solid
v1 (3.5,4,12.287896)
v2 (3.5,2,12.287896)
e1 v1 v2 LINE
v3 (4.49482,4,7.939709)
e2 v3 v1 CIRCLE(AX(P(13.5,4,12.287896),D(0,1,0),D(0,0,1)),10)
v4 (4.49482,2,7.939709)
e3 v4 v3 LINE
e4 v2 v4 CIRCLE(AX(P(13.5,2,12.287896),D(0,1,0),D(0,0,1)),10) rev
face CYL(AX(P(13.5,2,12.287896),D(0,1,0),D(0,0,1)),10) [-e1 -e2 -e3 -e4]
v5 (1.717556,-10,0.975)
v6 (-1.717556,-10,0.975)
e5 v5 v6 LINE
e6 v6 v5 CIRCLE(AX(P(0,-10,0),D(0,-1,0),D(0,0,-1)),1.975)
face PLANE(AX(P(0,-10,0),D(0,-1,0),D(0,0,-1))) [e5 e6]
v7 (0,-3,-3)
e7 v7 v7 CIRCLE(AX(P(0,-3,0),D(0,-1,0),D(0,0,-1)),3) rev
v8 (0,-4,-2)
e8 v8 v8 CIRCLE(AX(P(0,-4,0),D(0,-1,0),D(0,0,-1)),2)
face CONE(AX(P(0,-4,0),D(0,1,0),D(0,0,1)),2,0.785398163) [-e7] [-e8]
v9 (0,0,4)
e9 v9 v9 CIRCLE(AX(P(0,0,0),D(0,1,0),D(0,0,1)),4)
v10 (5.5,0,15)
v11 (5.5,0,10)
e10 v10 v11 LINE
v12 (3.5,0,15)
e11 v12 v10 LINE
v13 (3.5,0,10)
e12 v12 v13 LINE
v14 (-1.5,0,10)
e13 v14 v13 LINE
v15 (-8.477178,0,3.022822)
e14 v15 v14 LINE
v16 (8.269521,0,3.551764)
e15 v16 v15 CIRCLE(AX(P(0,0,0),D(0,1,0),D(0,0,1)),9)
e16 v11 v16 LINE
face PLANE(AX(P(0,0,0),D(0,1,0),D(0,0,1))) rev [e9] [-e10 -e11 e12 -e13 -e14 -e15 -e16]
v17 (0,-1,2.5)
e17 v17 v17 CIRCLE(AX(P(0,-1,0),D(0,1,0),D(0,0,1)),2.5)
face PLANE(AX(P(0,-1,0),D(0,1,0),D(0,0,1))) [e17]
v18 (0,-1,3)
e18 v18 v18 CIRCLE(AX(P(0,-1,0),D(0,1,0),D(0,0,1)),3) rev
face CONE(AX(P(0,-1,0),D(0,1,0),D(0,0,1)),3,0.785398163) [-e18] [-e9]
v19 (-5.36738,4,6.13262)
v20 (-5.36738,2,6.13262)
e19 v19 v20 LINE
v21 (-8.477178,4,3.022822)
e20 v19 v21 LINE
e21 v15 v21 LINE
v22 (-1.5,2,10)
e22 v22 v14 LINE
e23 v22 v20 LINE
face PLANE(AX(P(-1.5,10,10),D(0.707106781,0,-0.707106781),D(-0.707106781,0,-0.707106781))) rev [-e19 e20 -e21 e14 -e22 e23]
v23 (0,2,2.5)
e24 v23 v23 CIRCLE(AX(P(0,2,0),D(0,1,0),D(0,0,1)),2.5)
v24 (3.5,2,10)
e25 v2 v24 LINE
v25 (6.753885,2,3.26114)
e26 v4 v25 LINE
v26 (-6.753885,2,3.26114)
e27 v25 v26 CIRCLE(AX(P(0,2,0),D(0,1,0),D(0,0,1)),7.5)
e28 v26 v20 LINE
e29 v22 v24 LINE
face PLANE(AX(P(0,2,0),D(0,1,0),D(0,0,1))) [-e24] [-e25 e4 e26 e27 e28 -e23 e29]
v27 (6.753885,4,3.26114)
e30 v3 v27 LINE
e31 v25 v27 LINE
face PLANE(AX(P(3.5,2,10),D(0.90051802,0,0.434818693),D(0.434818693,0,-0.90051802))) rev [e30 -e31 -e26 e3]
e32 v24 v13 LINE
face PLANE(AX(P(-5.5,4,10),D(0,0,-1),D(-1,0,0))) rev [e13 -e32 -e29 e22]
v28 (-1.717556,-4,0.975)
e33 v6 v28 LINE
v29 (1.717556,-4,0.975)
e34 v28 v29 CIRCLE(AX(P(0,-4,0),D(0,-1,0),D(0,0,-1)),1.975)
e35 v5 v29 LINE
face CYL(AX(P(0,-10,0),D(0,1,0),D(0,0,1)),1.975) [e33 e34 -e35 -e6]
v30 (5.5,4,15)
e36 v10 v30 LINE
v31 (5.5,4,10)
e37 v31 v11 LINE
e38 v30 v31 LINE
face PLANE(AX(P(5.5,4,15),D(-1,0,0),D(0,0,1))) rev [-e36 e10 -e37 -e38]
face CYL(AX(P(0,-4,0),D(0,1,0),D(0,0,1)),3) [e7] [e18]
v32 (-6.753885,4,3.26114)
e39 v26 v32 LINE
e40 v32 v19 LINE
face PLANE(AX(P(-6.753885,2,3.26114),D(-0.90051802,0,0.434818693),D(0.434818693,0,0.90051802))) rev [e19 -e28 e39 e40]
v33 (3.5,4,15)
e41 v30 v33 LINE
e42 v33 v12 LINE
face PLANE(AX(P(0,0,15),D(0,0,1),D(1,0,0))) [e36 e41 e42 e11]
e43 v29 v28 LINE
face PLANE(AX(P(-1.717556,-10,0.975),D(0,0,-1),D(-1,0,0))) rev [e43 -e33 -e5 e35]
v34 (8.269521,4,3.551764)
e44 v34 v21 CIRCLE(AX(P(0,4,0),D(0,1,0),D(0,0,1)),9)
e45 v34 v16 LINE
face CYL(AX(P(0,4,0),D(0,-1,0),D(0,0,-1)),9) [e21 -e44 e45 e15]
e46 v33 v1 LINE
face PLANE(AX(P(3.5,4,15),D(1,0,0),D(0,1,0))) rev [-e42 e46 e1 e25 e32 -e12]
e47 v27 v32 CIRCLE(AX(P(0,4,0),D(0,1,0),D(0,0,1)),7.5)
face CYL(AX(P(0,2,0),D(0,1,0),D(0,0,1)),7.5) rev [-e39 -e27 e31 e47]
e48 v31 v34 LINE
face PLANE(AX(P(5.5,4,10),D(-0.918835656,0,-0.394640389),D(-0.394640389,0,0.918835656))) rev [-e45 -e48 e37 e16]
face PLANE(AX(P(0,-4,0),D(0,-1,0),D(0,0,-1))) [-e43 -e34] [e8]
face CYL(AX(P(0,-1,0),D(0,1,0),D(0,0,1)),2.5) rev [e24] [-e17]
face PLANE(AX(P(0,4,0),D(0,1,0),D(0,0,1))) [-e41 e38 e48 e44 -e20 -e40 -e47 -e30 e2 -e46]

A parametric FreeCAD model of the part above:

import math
import FreeCAD as App
import Part
import Sketcher
Q = App.Units.Quantity


def edges_at(feature, points):
    """Names of the edges that pass closest to the given points."""
    edges = feature.Shape.Edges
    near = lambda p: min(range(len(edges)), key=lambda i: edges[i].distToShape(Part.Vertex(*p))[0])
    return sorted({f"Edge{near(p) + 1}" for p in points})

doc = App.newDocument("Part")
body = doc.addObject("PartDesign::Body", "Body")

# Sketch on XZ plane
sketch1 = doc.addObject("Sketcher::SketchObject", "Sketch")
body.addObject(sketch1)
sketch1.AttachmentSupport = (doc.XZ_Plane, [""])
sketch1.MapMode = "FlatFace"
sketch1.addGeometry(Part.LineSegment(App.Vector(-8, 4, 0), App.Vector(-6, 10, 0)), False)
sketch1.addGeometry(Part.LineSegment(App.Vector(-6, 10, 0), App.Vector(6, 10, 0)), False)
sketch1.addGeometry(Part.LineSegment(App.Vector(6, 10, 0), App.Vector(8, 4, 0)), False)
sketch1.addGeometry(Part.ArcOfCircle(Part.Circle(App.Vector(0, 0, 0), App.Vector(0, 0, 1), 9), math.radians(157), math.radians(383)), False)
sketch1.addConstraint(Sketcher.Constraint("Coincident", 0, 2, 1, 1))
sketch1.addConstraint(Sketcher.Constraint("Coincident", 1, 2, 2, 1))
sketch1.addConstraint(Sketcher.Constraint("Tangent", 2, 2, 3, 2))
sketch1.addConstraint(Sketcher.Constraint("Tangent", 3, 1, 0, 1))
sketch1.addConstraint(Sketcher.Constraint("Horizontal", 1))
sketch1.addConstraint(Sketcher.Constraint("Coincident", 3, 3, -1, 1))
sketch1.addConstraint(Sketcher.Constraint("Horizontal", 2, 2, 3, 1))
sketch1.addConstraint(Sketcher.Constraint("Radius", 3, Q("9 mm")))
sketch1.addConstraint(Sketcher.Constraint("DistanceX", 1, 1, 1, 2, Q("11 mm")))
sketch1.addConstraint(Sketcher.Constraint("DistanceY", -1, 1, 0, 2, Q("10 mm")))
pad1 = doc.addObject("PartDesign::Pad", "Pad")
body.addObject(pad1)
pad1.Profile = sketch1
pad1.Length = 4
pad1.Reversed = True

# Sketch on XZ plane
sketch2 = doc.addObject("Sketcher::SketchObject", "Sketch001")
body.addObject(sketch2)
sketch2.AttachmentSupport = (doc.XZ_Plane, [""])
sketch2.MapMode = "FlatFace"
sketch2.AttachmentOffset = App.Placement(App.Vector(0, 0, -4), App.Rotation())
sketch2.addGeometry(Part.LineSegment(App.Vector(-7, 3, 0), App.Vector(-4, 10, 0)), False)
sketch2.addGeometry(Part.LineSegment(App.Vector(-4, 10, 0), App.Vector(4, 10, 0)), False)
sketch2.addGeometry(Part.LineSegment(App.Vector(4, 10, 0), App.Vector(7, 3, 0)), False)
sketch2.addGeometry(Part.ArcOfCircle(Part.Circle(App.Vector(0, 0, 0), App.Vector(0, 0, 1), 8), math.radians(154), math.radians(386)), False)
sketch2.addConstraint(Sketcher.Constraint("Coincident", 0, 2, 1, 1))
sketch2.addConstraint(Sketcher.Constraint("Coincident", 1, 2, 2, 1))
sketch2.addConstraint(Sketcher.Constraint("Tangent", 2, 2, 3, 2))
sketch2.addConstraint(Sketcher.Constraint("Tangent", 3, 1, 0, 1))
sketch2.addConstraint(Sketcher.Constraint("Horizontal", 1))
sketch2.addConstraint(Sketcher.Constraint("Coincident", 3, 3, -1, 1))
sketch2.addConstraint(Sketcher.Constraint("Horizontal", 2, 2, 3, 1))
sketch2.addConstraint(Sketcher.Constraint("Radius", 3, Q("7.5 mm")))
sketch2.addConstraint(Sketcher.Constraint("DistanceX", 1, 1, 1, 2, Q("7 mm")))
sketch2.addConstraint(Sketcher.Constraint("DistanceY", -1, 1, 0, 2, Q("10 mm")))
pocket1 = doc.addObject("PartDesign::Pocket", "Pocket")
body.addObject(pocket1)
pocket1.Profile = sketch2
pocket1.Length = 2
pocket1.Reversed = True

# Sketch on XZ plane
sketch3 = doc.addObject("Sketcher::SketchObject", "Sketch002")
body.addObject(sketch3)
sketch3.AttachmentSupport = (doc.XZ_Plane, [""])
sketch3.MapMode = "FlatFace"
sketch3.addGeometry(Part.LineSegment(App.Vector(1.7, 1, 0), App.Vector(-1.7, 1, 0)), False)
sketch3.addGeometry(Part.ArcOfCircle(Part.Circle(App.Vector(0, 0, 0), App.Vector(0, 0, 1), 2), math.radians(150), math.radians(390)), False)
sketch3.addConstraint(Sketcher.Constraint("Coincident", 0, 1, 1, 2))
sketch3.addConstraint(Sketcher.Constraint("Coincident", 1, 1, 0, 2))
sketch3.addConstraint(Sketcher.Constraint("Horizontal", 0))
sketch3.addConstraint(Sketcher.Constraint("Coincident", 1, 3, -1, 1))
sketch3.addConstraint(Sketcher.Constraint("Radius", 1, Q("1.975 mm")))
sketch3.addConstraint(Sketcher.Constraint("DistanceY", -1, 1, 0, 1, Q("0.975 mm")))
pad2 = doc.addObject("PartDesign::Pad", "Pad001")
body.addObject(pad2)
pad2.Profile = sketch3
pad2.Length = 10

# Sketch on XZ plane
sketch4 = doc.addObject("Sketcher::SketchObject", "Sketch003")
body.addObject(sketch4)
sketch4.AttachmentSupport = (doc.XZ_Plane, [""])
sketch4.MapMode = "FlatFace"
sketch4.addGeometry(Part.Circle(App.Vector(0, 0, 0), App.Vector(0, 0, 1), 3), False)
sketch4.addConstraint(Sketcher.Constraint("Coincident", 0, 3, -1, 1))
sketch4.addConstraint(Sketcher.Constraint("Diameter", 0, Q("6 mm")))
pad3 = doc.addObject("PartDesign::Pad", "Pad002")
body.addObject(pad3)
pad3.Profile = sketch4
pad3.Length = 4

# Sketch on XZ plane
sketch5 = doc.addObject("Sketcher::SketchObject", "Sketch004")
body.addObject(sketch5)
sketch5.AttachmentSupport = (doc.XZ_Plane, [""])
sketch5.MapMode = "FlatFace"
sketch5.AttachmentOffset = App.Placement(App.Vector(0, 0, -2), App.Rotation())
sketch5.addGeometry(Part.Circle(App.Vector(0, 0, 0), App.Vector(0, 0, 1), 2.5), False)
sketch5.addConstraint(Sketcher.Constraint("Coincident", 0, 3, -1, 1))
sketch5.addConstraint(Sketcher.Constraint("Diameter", 0, Q("5 mm")))
pocket2 = doc.addObject("PartDesign::Pocket", "Pocket001")
body.addObject(pocket2)
pocket2.Profile = sketch5
pocket2.Length = 3
pocket2.Reversed = True
doc.recompute()

chamfer = doc.addObject("PartDesign::Chamfer", "Chamfer")
body.addObject(chamfer)
chamfer.Base = (pocket2, edges_at(pocket2, [(0, 0, -3), (0, -4, -3)]))
chamfer.Size = 1

# Sketch on XY plane
sketch6 = doc.addObject("Sketcher::SketchObject", "Sketch005")
body.addObject(sketch6)
sketch6.AttachmentSupport = (doc.XY_Plane, [""])
sketch6.MapMode = "FlatFace"
sketch6.AttachmentOffset = App.Placement(App.Vector(0, 0, 10), App.Rotation())
sketch6.addGeometry(Part.LineSegment(App.Vector(3.5, 4, 0), App.Vector(3.5, 0, 0)), False)
sketch6.addGeometry(Part.LineSegment(App.Vector(3.5, 0, 0), App.Vector(5.5, 0, 0)), False)
sketch6.addGeometry(Part.LineSegment(App.Vector(5.5, 0, 0), App.Vector(5.5, 4, 0)), False)
sketch6.addGeometry(Part.LineSegment(App.Vector(5.5, 4, 0), App.Vector(3.5, 4, 0)), False)
sketch6.addConstraint(Sketcher.Constraint("Coincident", 0, 2, 1, 1))
sketch6.addConstraint(Sketcher.Constraint("Coincident", 1, 2, 2, 1))
sketch6.addConstraint(Sketcher.Constraint("Coincident", 2, 2, 3, 1))
sketch6.addConstraint(Sketcher.Constraint("Coincident", 3, 2, 0, 1))
sketch6.addConstraint(Sketcher.Constraint("Vertical", 0))
sketch6.addConstraint(Sketcher.Constraint("Horizontal", 1))
sketch6.addConstraint(Sketcher.Constraint("Vertical", 2))
sketch6.addConstraint(Sketcher.Constraint("Horizontal", 3))
sketch6.addConstraint(Sketcher.Constraint("PointOnObject", 0, 2, -1))
sketch6.addConstraint(Sketcher.Constraint("DistanceX", 1, 1, 1, 2, Q("2 mm")))
sketch6.addConstraint(Sketcher.Constraint("DistanceY", 0, 2, 0, 1, Q("4 mm")))
sketch6.addConstraint(Sketcher.Constraint("DistanceX", -1, 1, 0, 2, Q("3.5 mm")))
pad4 = doc.addObject("PartDesign::Pad", "Pad003")
body.addObject(pad4)
pad4.Profile = sketch6
pad4.Length = 5
doc.recompute()

fillet = doc.addObject("PartDesign::Fillet", "Fillet")
body.addObject(fillet)
fillet.Base = (pad4, edges_at(pad4, [(3.5, 3, 10)]))
fillet.Radius = 10

# Sketch on XZ plane
sketch7 = doc.addObject("Sketcher::SketchObject", "Sketch006")
body.addObject(sketch7)
sketch7.AttachmentSupport = (doc.XZ_Plane, [""])
sketch7.MapMode = "FlatFace"
sketch7.addGeometry(Part.LineSegment(App.Vector(-1.5, 10, 0), App.Vector(-5.5, 10, 0)), False)
sketch7.addGeometry(Part.LineSegment(App.Vector(-5.5, 10, 0), App.Vector(-8.5, 3, 0)), False)
sketch7.addGeometry(Part.LineSegment(App.Vector(-8.5, 3, 0), App.Vector(-1.5, 10, 0)), False)
sketch7.addConstraint(Sketcher.Constraint("Coincident", 0, 2, 1, 1))
sketch7.addConstraint(Sketcher.Constraint("Coincident", 1, 2, 2, 1))
sketch7.addConstraint(Sketcher.Constraint("Coincident", 2, 2, 0, 1))
sketch7.addConstraint(Sketcher.Constraint("Horizontal", 0))
sketch7.addConstraint(Sketcher.Constraint("DistanceX", 0, 2, 0, 1, Q("4 mm")))
sketch7.addConstraint(Sketcher.Constraint("Angle", 2, Q("45 deg")))
sketch7.addConstraint(Sketcher.Constraint("DistanceY", -1, 1, 0, 2, Q("10 mm")))
sketch7.addConstraint(Sketcher.Constraint("DistanceX", 0, 2, -1, 1, Q("5.5 mm")))
sketch7.addConstraint(Sketcher.Constraint("DistanceX", 1, 2, -1, 1, Q("8.5114 mm")))
pocket3 = doc.addObject("PartDesign::Pocket", "Pocket002")
body.addObject(pocket3)
pocket3.Profile = sketch7
pocket3.Length = 10

doc.recompute()
